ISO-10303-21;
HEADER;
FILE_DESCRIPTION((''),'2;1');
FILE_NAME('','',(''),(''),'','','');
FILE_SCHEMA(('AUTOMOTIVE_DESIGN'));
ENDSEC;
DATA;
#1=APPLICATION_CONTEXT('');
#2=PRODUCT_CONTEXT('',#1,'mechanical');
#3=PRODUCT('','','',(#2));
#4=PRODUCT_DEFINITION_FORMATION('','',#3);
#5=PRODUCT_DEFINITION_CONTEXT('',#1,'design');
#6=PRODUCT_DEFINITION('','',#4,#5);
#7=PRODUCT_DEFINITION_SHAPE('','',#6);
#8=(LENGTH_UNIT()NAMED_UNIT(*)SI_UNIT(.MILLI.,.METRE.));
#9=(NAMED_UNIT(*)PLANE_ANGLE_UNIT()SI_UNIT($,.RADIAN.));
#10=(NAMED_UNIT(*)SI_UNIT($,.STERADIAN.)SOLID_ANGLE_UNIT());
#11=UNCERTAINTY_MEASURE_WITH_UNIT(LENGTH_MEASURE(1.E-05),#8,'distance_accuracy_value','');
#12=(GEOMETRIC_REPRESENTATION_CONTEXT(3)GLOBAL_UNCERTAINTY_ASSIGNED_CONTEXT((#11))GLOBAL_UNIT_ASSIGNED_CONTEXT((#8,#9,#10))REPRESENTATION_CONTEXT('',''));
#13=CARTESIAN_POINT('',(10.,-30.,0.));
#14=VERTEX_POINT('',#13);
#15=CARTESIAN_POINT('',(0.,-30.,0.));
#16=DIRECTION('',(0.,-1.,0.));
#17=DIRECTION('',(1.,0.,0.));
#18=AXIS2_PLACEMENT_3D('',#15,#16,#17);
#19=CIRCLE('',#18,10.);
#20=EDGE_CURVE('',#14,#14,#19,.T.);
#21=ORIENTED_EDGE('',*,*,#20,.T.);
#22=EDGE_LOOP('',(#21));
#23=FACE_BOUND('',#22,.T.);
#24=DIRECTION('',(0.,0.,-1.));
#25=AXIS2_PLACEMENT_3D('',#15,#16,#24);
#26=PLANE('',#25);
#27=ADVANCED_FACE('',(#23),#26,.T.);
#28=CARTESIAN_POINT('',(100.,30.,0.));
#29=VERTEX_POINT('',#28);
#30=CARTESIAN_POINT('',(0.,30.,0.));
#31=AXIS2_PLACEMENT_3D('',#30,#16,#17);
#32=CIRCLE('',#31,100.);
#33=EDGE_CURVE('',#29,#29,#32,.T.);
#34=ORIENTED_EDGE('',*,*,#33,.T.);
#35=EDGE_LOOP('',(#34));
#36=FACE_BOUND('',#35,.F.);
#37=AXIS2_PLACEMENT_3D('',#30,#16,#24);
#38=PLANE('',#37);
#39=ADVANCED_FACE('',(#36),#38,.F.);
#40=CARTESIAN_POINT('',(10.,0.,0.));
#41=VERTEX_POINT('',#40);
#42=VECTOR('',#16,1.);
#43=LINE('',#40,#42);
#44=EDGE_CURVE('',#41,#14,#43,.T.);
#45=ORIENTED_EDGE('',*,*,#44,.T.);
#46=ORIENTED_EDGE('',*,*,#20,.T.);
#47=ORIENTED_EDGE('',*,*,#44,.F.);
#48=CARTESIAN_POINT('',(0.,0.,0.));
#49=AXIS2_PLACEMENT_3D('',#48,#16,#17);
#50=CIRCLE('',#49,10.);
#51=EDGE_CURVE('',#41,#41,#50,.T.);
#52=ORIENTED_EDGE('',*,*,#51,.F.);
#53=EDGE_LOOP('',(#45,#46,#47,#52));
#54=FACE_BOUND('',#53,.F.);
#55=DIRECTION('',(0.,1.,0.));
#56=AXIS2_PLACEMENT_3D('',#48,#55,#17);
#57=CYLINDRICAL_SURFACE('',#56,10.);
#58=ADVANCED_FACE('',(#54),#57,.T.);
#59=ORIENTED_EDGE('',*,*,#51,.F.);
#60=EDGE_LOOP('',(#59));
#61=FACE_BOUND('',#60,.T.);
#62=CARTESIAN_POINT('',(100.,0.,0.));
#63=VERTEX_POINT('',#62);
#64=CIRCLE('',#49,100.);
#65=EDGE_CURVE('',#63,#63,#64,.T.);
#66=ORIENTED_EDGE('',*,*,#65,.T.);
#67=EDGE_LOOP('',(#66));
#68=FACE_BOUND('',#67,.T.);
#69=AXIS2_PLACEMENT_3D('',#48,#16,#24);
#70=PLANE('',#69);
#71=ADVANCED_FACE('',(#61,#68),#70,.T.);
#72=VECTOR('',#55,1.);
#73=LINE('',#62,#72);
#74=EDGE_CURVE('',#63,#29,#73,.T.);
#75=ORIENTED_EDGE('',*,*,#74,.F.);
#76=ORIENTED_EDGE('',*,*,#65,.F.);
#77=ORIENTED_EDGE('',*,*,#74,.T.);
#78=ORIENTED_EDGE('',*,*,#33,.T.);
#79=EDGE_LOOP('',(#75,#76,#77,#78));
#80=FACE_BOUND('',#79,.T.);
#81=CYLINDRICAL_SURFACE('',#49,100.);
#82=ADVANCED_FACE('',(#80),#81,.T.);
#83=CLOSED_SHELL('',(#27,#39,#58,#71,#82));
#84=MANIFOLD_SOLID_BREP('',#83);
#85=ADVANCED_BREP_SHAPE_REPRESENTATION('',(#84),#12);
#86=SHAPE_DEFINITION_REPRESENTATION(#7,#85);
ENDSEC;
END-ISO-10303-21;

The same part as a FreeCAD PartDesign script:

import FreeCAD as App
import Part
import Sketcher
Q = App.Units.Quantity

doc = App.newDocument("Part")
body = doc.addObject("PartDesign::Body", "Body")

# Sketch on XZ plane
sketch1 = body.newObject("Sketcher::SketchObject", "Sketch")
sketch1.AttachmentSupport = (doc.getObject("XZ_Plane"), [""])
sketch1.MapMode = "FlatFace"
sketch1.addGeometry(Part.Circle(App.Vector(0, 0, 0), App.Vector(0, 0, 1), 100), False)
sketch1.addConstraint(Sketcher.Constraint("Coincident", 0, 3, -1, 1))
sketch1.addConstraint(Sketcher.Constraint("Diameter", 0, Q("200 mm")))
pad1 = body.newObject("PartDesign::Pad", "Pad")
pad1.Profile = sketch1
pad1.Length = 30
pad1.Reversed = True

# Sketch on XZ plane
sketch2 = body.newObject("Sketcher::SketchObject", "Sketch001")
sketch2.AttachmentSupport = (doc.getObject("XZ_Plane"), [""])
sketch2.MapMode = "FlatFace"
sketch2.addGeometry(Part.Circle(App.Vector(0, 0, 0), App.Vector(0, 0, 1), 10), False)
sketch2.addConstraint(Sketcher.Constraint("Coincident", 0, 3, -1, 1))
sketch2.addConstraint(Sketcher.Constraint("Diameter", 0, Q("20 mm")))
pad2 = body.newObject("PartDesign::Pad", "Pad001")
pad2.Profile = sketch2
pad2.Length = 30

doc.recompute()
